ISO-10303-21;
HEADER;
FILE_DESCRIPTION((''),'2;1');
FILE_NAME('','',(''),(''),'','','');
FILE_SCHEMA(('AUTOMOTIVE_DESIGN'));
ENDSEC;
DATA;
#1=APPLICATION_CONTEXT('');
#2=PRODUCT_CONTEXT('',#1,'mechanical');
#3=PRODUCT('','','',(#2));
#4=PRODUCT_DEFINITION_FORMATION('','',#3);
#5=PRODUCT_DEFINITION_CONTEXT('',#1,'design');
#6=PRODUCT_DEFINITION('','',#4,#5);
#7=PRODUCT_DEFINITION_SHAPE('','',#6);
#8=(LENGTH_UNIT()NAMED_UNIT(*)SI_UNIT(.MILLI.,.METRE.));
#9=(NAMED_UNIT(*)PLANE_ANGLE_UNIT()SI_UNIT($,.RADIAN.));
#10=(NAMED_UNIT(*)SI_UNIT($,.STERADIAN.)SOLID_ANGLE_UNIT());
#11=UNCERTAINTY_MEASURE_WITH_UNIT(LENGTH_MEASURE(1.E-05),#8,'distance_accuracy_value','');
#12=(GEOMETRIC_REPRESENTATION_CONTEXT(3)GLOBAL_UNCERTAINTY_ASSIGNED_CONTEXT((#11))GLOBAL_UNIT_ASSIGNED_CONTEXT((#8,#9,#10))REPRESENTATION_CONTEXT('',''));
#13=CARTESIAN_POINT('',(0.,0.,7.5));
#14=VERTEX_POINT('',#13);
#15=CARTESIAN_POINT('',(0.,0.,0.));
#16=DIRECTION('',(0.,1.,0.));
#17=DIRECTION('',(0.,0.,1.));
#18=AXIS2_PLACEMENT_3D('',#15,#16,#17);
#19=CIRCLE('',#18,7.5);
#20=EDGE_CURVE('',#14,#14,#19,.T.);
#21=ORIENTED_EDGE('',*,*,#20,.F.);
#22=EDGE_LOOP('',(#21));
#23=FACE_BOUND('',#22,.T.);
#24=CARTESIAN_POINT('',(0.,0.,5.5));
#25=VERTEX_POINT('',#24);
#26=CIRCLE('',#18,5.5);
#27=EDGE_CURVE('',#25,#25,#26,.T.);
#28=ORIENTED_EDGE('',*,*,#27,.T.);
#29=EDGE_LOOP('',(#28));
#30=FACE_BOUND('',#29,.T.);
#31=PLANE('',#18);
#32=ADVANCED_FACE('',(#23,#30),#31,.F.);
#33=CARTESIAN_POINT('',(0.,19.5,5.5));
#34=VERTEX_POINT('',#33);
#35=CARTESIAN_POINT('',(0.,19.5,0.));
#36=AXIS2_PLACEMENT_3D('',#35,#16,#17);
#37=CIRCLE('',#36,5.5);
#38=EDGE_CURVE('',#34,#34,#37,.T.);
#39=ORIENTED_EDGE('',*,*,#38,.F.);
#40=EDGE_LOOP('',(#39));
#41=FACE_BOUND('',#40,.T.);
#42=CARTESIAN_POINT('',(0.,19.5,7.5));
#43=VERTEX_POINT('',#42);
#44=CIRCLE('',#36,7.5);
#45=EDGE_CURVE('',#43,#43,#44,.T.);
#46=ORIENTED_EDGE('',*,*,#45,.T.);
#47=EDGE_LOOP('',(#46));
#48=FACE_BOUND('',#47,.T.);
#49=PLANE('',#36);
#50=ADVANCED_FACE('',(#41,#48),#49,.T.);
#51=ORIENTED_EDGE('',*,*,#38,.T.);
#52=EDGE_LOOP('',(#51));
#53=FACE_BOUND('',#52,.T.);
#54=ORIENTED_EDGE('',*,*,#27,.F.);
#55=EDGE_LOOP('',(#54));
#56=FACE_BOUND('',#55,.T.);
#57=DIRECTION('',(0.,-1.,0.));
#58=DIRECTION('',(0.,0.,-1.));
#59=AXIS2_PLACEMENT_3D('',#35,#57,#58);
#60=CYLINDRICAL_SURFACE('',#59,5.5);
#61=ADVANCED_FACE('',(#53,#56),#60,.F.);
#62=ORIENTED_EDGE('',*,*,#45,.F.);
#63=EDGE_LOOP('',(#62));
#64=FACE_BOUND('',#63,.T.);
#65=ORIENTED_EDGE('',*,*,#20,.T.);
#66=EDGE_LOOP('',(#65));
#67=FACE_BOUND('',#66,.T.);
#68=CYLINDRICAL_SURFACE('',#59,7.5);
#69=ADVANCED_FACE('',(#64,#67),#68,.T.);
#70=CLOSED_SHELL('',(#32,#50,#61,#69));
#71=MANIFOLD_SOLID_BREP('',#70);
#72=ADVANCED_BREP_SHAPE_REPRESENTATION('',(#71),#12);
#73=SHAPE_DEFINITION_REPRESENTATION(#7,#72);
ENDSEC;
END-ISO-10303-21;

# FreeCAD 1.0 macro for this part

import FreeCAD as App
import Part
import Sketcher

V = App.Vector

doc = App.newDocument("Part")
body = doc.addObject("PartDesign::Body", "Body")

sketch1 = doc.addObject("Sketcher::SketchObject", "Sketch")
body.addObject(sketch1)
sketch1.AttachmentSupport = (doc.XZ_Plane, [""])
sketch1.MapMode = "FlatFace"
sketch1.addGeometry(Part.Circle(V(0, 0, 0), V(0, 0, 1), 7.5), False)
sketch1.addGeometry(Part.Circle(V(0, 0, 0), V(0, 0, 1), 5.5), False)
sketch1.addConstraint(Sketcher.Constraint("Coincident", 0, 3, -1, 1))
sketch1.addConstraint(Sketcher.Constraint("Coincident", 1, 3, -1, 1))
sketch1.addConstraint(Sketcher.Constraint("Diameter", 0, 15.0))
sketch1.addConstraint(Sketcher.Constraint("Diameter", 1, 11.0))
pad1 = doc.addObject("PartDesign::Pad", "Pad")
body.addObject(pad1)
pad1.Profile = sketch1
pad1.Length = 19.5
pad1.Reversed = True

doc.recompute()
